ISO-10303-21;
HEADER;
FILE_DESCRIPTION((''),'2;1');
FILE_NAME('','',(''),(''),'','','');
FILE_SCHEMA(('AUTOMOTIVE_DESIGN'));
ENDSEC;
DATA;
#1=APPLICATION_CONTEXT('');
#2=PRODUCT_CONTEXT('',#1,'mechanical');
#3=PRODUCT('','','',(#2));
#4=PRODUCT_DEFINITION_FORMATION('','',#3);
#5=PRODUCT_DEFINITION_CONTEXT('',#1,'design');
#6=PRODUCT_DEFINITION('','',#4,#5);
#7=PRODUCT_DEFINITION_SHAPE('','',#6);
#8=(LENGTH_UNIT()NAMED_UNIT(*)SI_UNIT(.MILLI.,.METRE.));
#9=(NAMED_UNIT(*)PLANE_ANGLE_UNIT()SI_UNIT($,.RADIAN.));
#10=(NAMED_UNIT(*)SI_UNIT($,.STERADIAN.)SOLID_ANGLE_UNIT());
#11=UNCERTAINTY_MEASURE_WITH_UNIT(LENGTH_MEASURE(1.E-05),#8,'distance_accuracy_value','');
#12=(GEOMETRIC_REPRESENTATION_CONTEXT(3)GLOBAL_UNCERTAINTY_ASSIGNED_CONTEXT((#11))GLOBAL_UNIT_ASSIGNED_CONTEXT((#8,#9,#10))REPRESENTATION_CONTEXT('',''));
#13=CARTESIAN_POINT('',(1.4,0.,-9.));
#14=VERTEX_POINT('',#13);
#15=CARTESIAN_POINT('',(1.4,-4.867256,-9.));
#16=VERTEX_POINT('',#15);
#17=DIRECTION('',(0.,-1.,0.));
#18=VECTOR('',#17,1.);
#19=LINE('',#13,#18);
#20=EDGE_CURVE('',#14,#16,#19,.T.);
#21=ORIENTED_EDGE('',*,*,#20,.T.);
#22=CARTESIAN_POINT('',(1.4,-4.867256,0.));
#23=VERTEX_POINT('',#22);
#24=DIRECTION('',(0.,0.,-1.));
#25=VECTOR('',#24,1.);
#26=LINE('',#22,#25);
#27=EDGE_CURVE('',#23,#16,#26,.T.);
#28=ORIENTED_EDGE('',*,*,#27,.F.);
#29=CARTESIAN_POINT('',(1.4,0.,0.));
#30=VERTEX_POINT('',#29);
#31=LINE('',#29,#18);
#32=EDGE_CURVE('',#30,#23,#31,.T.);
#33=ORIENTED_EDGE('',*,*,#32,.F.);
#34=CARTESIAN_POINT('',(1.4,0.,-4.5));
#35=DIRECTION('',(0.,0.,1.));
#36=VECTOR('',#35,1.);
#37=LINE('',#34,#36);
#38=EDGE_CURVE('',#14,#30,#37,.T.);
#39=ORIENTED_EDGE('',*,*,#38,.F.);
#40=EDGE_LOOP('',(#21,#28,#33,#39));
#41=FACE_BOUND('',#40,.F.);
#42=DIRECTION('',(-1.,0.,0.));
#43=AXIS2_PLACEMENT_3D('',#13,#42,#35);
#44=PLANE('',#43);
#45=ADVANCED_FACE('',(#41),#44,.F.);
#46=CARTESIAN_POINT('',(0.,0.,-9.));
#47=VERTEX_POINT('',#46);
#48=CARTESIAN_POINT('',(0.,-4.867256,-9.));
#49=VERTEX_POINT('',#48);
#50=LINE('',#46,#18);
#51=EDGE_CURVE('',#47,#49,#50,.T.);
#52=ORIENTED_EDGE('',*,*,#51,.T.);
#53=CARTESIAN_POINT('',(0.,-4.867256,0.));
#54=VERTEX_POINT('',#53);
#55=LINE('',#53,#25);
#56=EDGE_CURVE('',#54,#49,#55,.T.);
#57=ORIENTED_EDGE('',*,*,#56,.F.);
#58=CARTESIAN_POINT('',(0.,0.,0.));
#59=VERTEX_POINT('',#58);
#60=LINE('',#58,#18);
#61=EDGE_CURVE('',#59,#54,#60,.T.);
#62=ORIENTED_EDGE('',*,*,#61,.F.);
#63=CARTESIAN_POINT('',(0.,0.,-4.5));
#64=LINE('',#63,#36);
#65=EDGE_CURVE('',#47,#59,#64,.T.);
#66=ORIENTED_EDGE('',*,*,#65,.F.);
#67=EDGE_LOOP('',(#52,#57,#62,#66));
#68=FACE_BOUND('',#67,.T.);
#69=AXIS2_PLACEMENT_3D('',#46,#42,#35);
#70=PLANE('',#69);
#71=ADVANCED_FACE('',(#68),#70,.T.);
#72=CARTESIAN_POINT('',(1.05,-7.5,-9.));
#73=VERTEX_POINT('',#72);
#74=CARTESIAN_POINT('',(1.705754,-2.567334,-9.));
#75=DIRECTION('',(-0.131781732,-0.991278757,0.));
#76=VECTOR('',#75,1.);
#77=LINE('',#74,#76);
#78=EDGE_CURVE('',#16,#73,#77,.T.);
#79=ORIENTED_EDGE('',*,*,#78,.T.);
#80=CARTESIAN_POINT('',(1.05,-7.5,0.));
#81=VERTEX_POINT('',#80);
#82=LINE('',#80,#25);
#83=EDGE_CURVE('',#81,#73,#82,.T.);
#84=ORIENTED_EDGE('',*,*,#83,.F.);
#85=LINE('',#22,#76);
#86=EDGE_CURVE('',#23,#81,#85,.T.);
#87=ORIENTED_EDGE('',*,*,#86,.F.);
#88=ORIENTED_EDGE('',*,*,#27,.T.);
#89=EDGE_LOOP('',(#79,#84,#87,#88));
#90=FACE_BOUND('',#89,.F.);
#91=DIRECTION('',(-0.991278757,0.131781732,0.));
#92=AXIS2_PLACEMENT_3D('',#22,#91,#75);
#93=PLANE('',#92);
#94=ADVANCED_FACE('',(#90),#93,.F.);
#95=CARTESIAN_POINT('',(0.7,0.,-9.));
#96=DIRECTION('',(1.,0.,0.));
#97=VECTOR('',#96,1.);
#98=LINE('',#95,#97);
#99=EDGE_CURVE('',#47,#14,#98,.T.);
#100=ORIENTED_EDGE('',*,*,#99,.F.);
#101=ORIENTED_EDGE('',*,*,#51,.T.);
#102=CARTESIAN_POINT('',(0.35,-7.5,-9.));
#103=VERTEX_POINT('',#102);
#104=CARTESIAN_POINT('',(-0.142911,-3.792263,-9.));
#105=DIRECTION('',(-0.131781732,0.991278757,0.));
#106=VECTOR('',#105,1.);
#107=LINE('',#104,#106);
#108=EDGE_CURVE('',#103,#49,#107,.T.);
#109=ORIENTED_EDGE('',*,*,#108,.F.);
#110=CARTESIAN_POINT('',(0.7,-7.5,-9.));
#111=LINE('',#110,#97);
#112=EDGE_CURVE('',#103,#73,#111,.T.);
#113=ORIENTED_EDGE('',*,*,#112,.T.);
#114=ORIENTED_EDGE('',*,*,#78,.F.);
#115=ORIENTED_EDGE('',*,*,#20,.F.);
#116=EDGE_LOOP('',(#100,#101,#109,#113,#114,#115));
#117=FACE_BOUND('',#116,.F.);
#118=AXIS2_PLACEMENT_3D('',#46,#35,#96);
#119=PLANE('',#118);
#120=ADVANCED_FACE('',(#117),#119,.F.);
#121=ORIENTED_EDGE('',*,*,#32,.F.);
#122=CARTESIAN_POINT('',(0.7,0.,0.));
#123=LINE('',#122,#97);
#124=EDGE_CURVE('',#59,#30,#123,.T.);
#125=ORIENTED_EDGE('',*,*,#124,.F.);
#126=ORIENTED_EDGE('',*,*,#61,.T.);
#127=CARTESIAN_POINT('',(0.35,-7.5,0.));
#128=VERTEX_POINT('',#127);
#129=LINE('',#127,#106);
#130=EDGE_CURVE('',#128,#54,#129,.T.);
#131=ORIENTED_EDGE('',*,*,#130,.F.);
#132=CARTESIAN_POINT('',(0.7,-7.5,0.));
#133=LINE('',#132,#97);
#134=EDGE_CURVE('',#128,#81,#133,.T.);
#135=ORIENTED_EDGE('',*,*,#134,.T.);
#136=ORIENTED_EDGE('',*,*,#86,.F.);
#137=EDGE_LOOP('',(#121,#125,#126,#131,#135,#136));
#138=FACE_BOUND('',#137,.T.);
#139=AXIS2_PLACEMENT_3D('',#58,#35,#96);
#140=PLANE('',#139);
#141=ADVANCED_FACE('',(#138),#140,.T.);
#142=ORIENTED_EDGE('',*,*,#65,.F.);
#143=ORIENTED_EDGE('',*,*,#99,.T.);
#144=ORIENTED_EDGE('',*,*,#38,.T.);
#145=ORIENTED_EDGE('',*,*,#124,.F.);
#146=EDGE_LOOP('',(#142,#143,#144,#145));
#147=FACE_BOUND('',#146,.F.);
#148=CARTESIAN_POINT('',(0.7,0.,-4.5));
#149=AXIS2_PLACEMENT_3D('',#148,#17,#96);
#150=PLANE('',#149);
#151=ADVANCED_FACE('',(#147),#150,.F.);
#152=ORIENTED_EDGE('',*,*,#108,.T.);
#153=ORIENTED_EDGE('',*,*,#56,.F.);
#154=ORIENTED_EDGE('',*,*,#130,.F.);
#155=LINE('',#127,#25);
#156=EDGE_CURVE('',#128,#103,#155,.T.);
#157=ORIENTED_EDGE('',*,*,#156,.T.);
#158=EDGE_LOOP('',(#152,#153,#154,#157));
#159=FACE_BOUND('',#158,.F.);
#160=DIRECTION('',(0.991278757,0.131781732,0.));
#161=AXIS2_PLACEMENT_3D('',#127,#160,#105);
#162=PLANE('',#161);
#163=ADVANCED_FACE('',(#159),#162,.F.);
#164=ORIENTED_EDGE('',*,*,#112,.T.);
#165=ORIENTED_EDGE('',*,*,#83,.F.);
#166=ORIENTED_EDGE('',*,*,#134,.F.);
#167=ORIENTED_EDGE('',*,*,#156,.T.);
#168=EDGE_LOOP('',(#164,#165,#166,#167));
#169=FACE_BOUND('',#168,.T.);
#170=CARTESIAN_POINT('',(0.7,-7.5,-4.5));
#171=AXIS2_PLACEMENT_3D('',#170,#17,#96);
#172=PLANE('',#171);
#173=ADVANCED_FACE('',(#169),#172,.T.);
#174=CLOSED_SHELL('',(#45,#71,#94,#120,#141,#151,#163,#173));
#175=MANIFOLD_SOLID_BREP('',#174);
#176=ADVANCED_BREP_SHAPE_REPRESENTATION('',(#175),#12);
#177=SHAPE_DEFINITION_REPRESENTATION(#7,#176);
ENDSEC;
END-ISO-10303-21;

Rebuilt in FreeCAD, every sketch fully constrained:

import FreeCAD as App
import Part
import Sketcher


def add_polygon(sketch, points):
    """Adds a closed chain of lines whose ends are joined by coincident constraints."""
    first, n = sketch.GeometryCount, len(points)
    for a, b in zip(points, points[1:] + points[:1]):
        sketch.addGeometry(Part.LineSegment(App.Vector(*a, 0), App.Vector(*b, 0)), False)
    for i in range(n):
        sketch.addConstraint(Sketcher.Constraint("Coincident", first + i, 2, first + (i + 1) % n, 1))

doc = App.newDocument("Part")
body = doc.addObject("PartDesign::Body", "Body")

# Sketch on XZ plane
sketch1 = body.newObject("Sketcher::SketchObject", "Sketch")
sketch1.AttachmentSupport = (doc.getObject("XZ_Plane"), [""])
sketch1.MapMode = "FlatFace"
add_polygon(sketch1, [(0, 0), (0, -9), (1.4, -9), (1.4, 0)])  # lines 0-3
sketch1.addConstraint(Sketcher.Constraint("Vertical", 0))
sketch1.addConstraint(Sketcher.Constraint("Horizontal", 1))
sketch1.addConstraint(Sketcher.Constraint("Vertical", 2))
sketch1.addConstraint(Sketcher.Constraint("Horizontal", 3))
sketch1.addConstraint(Sketcher.Constraint("Coincident", 3, 2, -1, 1))
sketch1.addConstraint(Sketcher.Constraint("DistanceY", 0, 2, 0, 1, 9.0))
sketch1.addConstraint(Sketcher.Constraint("DistanceX", 1, 1, 1, 2, 1.4))
pad1 = body.newObject("PartDesign::Pad", "Pad")
pad1.Profile = sketch1
pad1.Length = 7.5

# Sketch on XY plane
sketch2 = body.newObject("Sketcher::SketchObject", "Sketch001")
sketch2.AttachmentSupport = (doc.getObject("XY_Plane"), [""])
sketch2.MapMode = "FlatFace"
add_polygon(sketch2, [(0, -7.5), (0.35, -7.5), (0, -4.87)])  # lines 0-2
add_polygon(sketch2, [(1.4, -4.87), (1.05, -7.5), (1.4, -7.5)])  # lines 3-5
sketch2.addConstraint(Sketcher.Constraint("Horizontal", 0))
sketch2.addConstraint(Sketcher.Constraint("Vertical", 2))
sketch2.addConstraint(Sketcher.Constraint("Horizontal", 4))
sketch2.addConstraint(Sketcher.Constraint("Vertical", 5))
sketch2.addConstraint(Sketcher.Constraint("PointOnObject", 1, 2, -2))
sketch2.addConstraint(Sketcher.Constraint("Horizontal", 2, 2, 3, 2))
sketch2.addConstraint(Sketcher.Constraint("Horizontal", 1, 2, 5, 2))
sketch2.addConstraint(Sketcher.Constraint("Equal", 0, 4))
sketch2.addConstraint(Sketcher.Constraint("DistanceX", 0, 1, 0, 2, 0.35))
sketch2.addConstraint(Sketcher.Constraint("DistanceY", 0, 2, -1, 1, 7.5))
sketch2.addConstraint(Sketcher.Constraint("DistanceX", -1, 1, 4, 2, 1.4))
sketch2.addConstraint(Sketcher.Constraint("DistanceY", 2, 2, 2, 1, 2.632744))
pocket1 = body.newObject("PartDesign::Pocket", "Pocket")
pocket1.Profile = sketch2
pocket1.Length = 25.4

doc.recompute()
